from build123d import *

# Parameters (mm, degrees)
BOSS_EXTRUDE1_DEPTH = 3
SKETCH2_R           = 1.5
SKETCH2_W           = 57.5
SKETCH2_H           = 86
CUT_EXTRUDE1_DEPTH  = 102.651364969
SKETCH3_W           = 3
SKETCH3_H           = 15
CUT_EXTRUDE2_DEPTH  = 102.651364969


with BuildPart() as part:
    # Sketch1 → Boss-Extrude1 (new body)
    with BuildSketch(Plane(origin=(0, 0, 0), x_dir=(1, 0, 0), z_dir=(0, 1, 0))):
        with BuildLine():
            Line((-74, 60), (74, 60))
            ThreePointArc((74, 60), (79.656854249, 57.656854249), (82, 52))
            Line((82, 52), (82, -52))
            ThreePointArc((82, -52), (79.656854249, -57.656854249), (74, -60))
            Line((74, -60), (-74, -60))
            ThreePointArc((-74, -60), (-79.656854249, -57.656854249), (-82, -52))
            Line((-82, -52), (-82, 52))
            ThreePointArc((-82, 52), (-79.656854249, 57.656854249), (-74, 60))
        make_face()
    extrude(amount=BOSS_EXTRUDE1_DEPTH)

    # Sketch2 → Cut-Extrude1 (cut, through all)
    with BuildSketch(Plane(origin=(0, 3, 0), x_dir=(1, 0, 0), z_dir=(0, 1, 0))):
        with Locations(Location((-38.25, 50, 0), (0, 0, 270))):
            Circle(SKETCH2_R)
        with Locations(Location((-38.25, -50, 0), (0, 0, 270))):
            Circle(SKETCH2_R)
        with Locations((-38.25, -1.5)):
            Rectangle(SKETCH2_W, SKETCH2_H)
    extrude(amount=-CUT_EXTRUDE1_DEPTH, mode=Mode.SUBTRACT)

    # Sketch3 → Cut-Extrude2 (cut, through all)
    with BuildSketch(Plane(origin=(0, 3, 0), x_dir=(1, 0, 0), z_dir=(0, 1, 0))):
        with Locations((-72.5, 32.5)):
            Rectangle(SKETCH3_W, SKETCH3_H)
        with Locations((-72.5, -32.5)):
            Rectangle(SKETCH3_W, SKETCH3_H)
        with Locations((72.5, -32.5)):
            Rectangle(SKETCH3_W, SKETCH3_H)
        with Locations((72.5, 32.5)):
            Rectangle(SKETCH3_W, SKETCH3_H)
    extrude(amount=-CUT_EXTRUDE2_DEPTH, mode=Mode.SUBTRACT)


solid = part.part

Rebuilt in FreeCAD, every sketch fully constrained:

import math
import FreeCAD as App
import Part
import Sketcher
Q = App.Units.Quantity


def add_polygon(sketch, points):
    """Adds a closed chain of lines whose ends are joined by coincident constraints."""
    first, n = sketch.GeometryCount, len(points)
    for a, b in zip(points, points[1:] + points[:1]):
        sketch.addGeometry(Part.LineSegment(App.Vector(*a, 0), App.Vector(*b, 0)), False)
    for i in range(n):
        sketch.addConstraint(Sketcher.Constraint("Coincident", first + i, 2, first + (i + 1) % n, 1))

doc = App.newDocument("Part")
body = doc.addObject("PartDesign::Body", "Body")

# Sketch on XZ plane
sketch1 = doc.addObject("Sketcher::SketchObject", "Sketch")
body.addObject(sketch1)
sketch1.AttachmentSupport = (doc.XZ_Plane, [""])
sketch1.MapMode = "FlatFace"
sketch1.addGeometry([
    Part.LineSegment(App.Vector(74, -60, 0), App.Vector(-74, -60, 0)),  # 0
    Part.ArcOfCircle(Part.Circle(App.Vector(-74, -52, 0), App.Vector(0, 0, 1), 8), math.radians(-180), math.radians(-90)),  # 1
    Part.LineSegment(App.Vector(-82, -52, 0), App.Vector(-82, 52, 0)),  # 2
    Part.ArcOfCircle(Part.Circle(App.Vector(-74, 52, 0), App.Vector(0, 0, 1), 8), math.radians(90), math.radians(180)),  # 3
    Part.LineSegment(App.Vector(-74, 60, 0), App.Vector(74, 60, 0)),  # 4
    Part.ArcOfCircle(Part.Circle(App.Vector(74, 52, 0), App.Vector(0, 0, 1), 8), math.radians(0), math.radians(90)),  # 5
    Part.LineSegment(App.Vector(82, 52, 0), App.Vector(82, -52, 0)),  # 6
    Part.ArcOfCircle(Part.Circle(App.Vector(74, -52, 0), App.Vector(0, 0, 1), 8), math.radians(-90), math.radians(0)),  # 7
], False)
sketch1.addConstraint([
    Sketcher.Constraint("Tangent", 0, 2, 1, 2),
    Sketcher.Constraint("Tangent", 1, 1, 2, 1),
    Sketcher.Constraint("Tangent", 2, 2, 3, 2),
    Sketcher.Constraint("Tangent", 3, 1, 4, 1),
    Sketcher.Constraint("Tangent", 4, 2, 5, 2),
    Sketcher.Constraint("Tangent", 5, 1, 6, 1),
    Sketcher.Constraint("Tangent", 6, 2, 7, 2),
    Sketcher.Constraint("Tangent", 7, 1, 0, 1),
    Sketcher.Constraint("Horizontal", 0),
    Sketcher.Constraint("Vertical", 2),
    Sketcher.Constraint("Horizontal", 4),
    Sketcher.Constraint("Vertical", 6),
    Sketcher.Constraint("Equal", 1, 3),
    Sketcher.Constraint("Equal", 3, 5),
    Sketcher.Constraint("Equal", 5, 7),
    Sketcher.Constraint("Symmetric", 1, 3, 5, 3, -1, 1),
    Sketcher.Constraint("Radius", 1, Q("8 mm")),
    Sketcher.Constraint("DistanceX", 0, 2, 0, 1, Q("148 mm")),
    Sketcher.Constraint("DistanceY", 2, 1, 2, 2, Q("104 mm")),
])
pad1 = doc.addObject("PartDesign::Pad", "Pad")
body.addObject(pad1)
pad1.Profile = sketch1
pad1.Length = 3
pad1.Reversed = True

# Sketch on XZ plane
sketch2 = doc.addObject("Sketcher::SketchObject", "Sketch001")
body.addObject(sketch2)
sketch2.AttachmentSupport = (doc.XZ_Plane, [""])
sketch2.MapMode = "FlatFace"
sketch2.AttachmentOffset = App.Placement(App.Vector(0, 0, -3), App.Rotation())
sketch2.addGeometry(Part.Circle(App.Vector(-38.2, -50, 0), App.Vector(0, 0, 1), 1.5), False)  # 0
sketch2.addGeometry(Part.Circle(App.Vector(-38.2, 50, 0), App.Vector(0, 0, 1), 1.5), False)  # 1
add_polygon(sketch2, [(-67, -41.5), (-67, 44.5), (-9.5, 44.5), (-9.5, -41.5)])  # lines 2-5
sketch2.addConstraint([
    Sketcher.Constraint("Vertical", 2),
    Sketcher.Constraint("Horizontal", 3),
    Sketcher.Constraint("Vertical", 4),
    Sketcher.Constraint("Horizontal", 5),
    Sketcher.Constraint("Equal", 0, 1),
    Sketcher.Constraint("Symmetric", 0, 3, 1, 3, -1),
    Sketcher.Constraint("Diameter", 0, Q("3 mm")),
    Sketcher.Constraint("DistanceY", 2, 1, 2, 2, Q("86 mm")),
    Sketcher.Constraint("DistanceX", 3, 1, 3, 2, Q("57.5 mm")),
    Sketcher.Constraint("DistanceY", 0, 3, -1, 1, Q("50 mm")),
    Sketcher.Constraint("DistanceX", 2, 2, -1, 1, Q("67 mm")),
    Sketcher.Constraint("DistanceY", -1, 1, 2, 2, Q("44.5 mm")),
    Sketcher.Constraint("DistanceX", 0, 3, -1, 1, Q("38.25 mm")),
])
pocket1 = doc.addObject("PartDesign::Pocket", "Pocket")
body.addObject(pocket1)
pocket1.Profile = sketch2
pocket1.Type = "ThroughAll"
pocket1.Reversed = True

# Sketch on XZ plane
sketch3 = doc.addObject("Sketcher::SketchObject", "Sketch002")
body.addObject(sketch3)
sketch3.AttachmentSupport = (doc.XZ_Plane, [""])
sketch3.MapMode = "FlatFace"
sketch3.AttachmentOffset = App.Placement(App.Vector(0, 0, -3), App.Rotation())
add_polygon(sketch3, [(-74, -40), (-74, -25), (-71, -25), (-71, -40)])  # lines 0-3
add_polygon(sketch3, [(-74, 25), (-74, 40), (-71, 40), (-71, 25)])  # lines 4-7
add_polygon(sketch3, [(71, 25), (71, 40), (74, 40), (74, 25)])  # lines 8-11
add_polygon(sketch3, [(71, -40), (71, -25), (74, -25), (74, -40)])  # lines 12-15
sketch3.addConstraint([
    Sketcher.Constraint("Vertical", 0),
    Sketcher.Constraint("Horizontal", 1),
    Sketcher.Constraint("Vertical", 2),
    Sketcher.Constraint("Horizontal", 3),
    Sketcher.Constraint("Vertical", 4),
    Sketcher.Constraint("Horizontal", 5),
    Sketcher.Constraint("Vertical", 6),
    Sketcher.Constraint("Horizontal", 7),
    Sketcher.Constraint("Vertical", 8),
    Sketcher.Constraint("Horizontal", 9),
    Sketcher.Constraint("Vertical", 10),
    Sketcher.Constraint("Horizontal", 11),
    Sketcher.Constraint("Vertical", 12),
    Sketcher.Constraint("Horizontal", 13),
    Sketcher.Constraint("Vertical", 14),
    Sketcher.Constraint("Horizontal", 15),
    Sketcher.Constraint("Symmetric", 2, 2, 8, 2, -1, 1),
    Sketcher.Constraint("Symmetric", 0, 2, 10, 2, -1, 1),
    Sketcher.Constraint("Symmetric", 6, 2, 12, 2, -1, 1),
    Sketcher.Constraint("Symmetric", 4, 2, 14, 2, -1, 1),
    Sketcher.Constraint("Symmetric", 5, 2, 8, 2, -2),
    Sketcher.Constraint("Symmetric", 7, 2, 10, 2, -2),
    Sketcher.Constraint("DistanceX", 1, 1, 1, 2, Q("3 mm")),
    Sketcher.Constraint("DistanceY", 0, 1, 0, 2, Q("15 mm")),
    Sketcher.Constraint("DistanceX", 0, 2, -1, 1, Q("74 mm")),
    Sketcher.Constraint("DistanceY", 0, 2, -1, 1, Q("25 mm")),
])
pocket2 = doc.addObject("PartDesign::Pocket", "Pocket001")
body.addObject(pocket2)
pocket2.Profile = sketch3
pocket2.Type = "ThroughAll"
pocket2.Reversed = True

doc.recompute()
